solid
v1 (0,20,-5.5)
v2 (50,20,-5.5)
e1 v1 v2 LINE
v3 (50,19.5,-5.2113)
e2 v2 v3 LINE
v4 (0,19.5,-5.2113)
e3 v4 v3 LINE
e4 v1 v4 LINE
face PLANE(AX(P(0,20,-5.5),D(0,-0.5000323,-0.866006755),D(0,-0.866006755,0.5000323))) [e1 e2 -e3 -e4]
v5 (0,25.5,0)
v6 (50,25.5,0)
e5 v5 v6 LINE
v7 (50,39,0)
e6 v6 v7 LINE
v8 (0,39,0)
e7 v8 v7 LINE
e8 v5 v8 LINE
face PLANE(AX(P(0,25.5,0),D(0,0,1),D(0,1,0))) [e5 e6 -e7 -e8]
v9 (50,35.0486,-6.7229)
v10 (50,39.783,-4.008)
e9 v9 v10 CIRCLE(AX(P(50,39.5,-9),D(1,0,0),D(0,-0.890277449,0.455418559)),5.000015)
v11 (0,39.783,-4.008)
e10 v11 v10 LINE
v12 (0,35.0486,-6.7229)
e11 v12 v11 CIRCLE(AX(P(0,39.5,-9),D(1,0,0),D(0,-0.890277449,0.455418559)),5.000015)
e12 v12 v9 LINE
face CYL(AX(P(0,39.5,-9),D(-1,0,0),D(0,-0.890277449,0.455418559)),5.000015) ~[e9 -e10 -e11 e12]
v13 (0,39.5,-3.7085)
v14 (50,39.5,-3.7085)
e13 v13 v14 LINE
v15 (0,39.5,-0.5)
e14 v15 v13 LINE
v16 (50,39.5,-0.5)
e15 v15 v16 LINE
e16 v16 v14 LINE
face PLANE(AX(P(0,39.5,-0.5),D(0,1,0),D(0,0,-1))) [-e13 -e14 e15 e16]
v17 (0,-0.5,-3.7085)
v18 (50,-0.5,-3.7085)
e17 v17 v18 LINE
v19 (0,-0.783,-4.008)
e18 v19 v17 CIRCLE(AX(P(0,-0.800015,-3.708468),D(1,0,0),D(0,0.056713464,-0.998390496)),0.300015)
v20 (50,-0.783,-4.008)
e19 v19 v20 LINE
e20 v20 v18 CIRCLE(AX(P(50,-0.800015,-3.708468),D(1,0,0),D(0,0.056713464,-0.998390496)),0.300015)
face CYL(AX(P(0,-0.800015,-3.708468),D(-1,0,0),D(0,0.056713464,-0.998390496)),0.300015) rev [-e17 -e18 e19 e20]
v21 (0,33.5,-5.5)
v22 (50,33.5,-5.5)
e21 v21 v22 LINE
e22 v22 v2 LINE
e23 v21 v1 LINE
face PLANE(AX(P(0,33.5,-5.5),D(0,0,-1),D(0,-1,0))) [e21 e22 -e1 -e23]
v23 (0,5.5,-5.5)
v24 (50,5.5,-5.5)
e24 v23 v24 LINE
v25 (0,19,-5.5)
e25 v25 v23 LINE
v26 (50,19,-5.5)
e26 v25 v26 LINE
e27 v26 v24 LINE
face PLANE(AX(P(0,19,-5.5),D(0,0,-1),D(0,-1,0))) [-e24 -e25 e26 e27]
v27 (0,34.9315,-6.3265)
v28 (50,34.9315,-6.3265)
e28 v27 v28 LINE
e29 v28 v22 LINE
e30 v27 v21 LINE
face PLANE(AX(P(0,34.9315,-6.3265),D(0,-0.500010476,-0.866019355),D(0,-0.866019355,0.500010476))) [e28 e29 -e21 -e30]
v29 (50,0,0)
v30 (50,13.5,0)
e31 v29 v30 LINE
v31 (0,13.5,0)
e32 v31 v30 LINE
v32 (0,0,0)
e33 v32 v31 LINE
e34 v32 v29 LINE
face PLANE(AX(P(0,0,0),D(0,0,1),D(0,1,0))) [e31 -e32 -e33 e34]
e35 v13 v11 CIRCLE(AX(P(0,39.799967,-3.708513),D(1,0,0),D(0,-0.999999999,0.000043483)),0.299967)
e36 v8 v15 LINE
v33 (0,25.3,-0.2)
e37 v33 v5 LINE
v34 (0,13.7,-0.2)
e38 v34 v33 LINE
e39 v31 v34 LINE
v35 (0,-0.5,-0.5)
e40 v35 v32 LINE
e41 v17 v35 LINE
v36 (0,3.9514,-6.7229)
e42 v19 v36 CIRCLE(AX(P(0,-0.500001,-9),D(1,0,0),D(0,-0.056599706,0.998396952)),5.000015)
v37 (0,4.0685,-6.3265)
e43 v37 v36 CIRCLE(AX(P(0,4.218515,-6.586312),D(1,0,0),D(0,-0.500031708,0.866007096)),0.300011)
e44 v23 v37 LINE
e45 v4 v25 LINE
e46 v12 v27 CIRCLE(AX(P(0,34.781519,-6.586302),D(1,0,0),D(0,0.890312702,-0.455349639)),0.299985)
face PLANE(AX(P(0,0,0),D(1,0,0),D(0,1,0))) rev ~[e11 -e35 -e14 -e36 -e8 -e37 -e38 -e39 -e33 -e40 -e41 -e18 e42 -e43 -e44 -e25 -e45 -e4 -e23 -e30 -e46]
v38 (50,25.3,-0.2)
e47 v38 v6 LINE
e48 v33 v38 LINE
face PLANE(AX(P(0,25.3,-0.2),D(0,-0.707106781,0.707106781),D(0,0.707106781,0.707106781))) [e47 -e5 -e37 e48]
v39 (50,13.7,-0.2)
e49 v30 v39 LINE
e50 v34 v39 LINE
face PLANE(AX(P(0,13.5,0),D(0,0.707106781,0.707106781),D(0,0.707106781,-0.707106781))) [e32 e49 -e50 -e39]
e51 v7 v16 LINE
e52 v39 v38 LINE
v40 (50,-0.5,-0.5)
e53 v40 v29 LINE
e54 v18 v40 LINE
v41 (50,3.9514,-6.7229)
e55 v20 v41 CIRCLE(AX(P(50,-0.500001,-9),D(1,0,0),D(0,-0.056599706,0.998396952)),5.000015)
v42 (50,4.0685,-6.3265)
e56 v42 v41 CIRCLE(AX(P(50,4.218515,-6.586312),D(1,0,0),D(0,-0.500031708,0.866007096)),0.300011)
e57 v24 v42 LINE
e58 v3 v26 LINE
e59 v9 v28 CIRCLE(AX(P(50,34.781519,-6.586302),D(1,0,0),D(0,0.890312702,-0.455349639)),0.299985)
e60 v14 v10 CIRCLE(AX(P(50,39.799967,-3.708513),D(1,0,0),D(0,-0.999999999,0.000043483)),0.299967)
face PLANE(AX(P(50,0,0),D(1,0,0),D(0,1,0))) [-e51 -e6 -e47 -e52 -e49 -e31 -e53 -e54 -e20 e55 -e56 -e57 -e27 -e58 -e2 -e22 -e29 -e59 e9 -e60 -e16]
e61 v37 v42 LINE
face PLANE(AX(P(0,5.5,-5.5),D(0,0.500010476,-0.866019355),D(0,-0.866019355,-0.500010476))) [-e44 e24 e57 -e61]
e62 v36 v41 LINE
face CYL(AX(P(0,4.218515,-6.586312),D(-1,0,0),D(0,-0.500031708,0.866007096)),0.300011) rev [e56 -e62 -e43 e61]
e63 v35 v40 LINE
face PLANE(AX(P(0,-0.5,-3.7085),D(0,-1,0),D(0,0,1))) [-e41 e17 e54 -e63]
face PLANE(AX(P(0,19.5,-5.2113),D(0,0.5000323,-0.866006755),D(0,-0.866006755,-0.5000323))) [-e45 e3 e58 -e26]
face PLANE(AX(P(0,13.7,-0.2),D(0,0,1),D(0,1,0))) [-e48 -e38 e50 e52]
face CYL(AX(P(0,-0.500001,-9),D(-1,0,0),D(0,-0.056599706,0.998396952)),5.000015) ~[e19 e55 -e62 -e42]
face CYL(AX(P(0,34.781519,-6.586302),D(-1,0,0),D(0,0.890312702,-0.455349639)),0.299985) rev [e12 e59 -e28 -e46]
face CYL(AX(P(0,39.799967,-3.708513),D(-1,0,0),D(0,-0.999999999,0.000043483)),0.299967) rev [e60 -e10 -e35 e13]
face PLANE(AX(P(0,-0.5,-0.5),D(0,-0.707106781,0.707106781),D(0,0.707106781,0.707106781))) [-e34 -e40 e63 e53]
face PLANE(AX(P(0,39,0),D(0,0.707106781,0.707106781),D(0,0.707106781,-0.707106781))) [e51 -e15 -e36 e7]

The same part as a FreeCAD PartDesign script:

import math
import FreeCAD as App
import Part
import Sketcher
Q = App.Units.Quantity

doc = App.newDocument("Part")
body = doc.addObject("PartDesign::Body", "Body")

# Sketch on YZ plane
sketch1 = body.newObject("Sketcher::SketchObject", "Sketch")
sketch1.AttachmentSupport = (doc.getObject("YZ_Plane"), [""])
sketch1.MapMode = "FlatFace"
sketch1.addGeometry([
    Part.LineSegment(App.Vector(25.3, -0.2, 0), App.Vector(13.7, -0.2, 0)),  # 0
    Part.LineSegment(App.Vector(13.7, -0.2, 0), App.Vector(13.5, 0, 0)),  # 1
    Part.LineSegment(App.Vector(13.5, 0, 0), App.Vector(0, 0, 0)),  # 2
    Part.LineSegment(App.Vector(0, 0, 0), App.Vector(-0.5, -0.5, 0)),  # 3
    Part.LineSegment(App.Vector(-0.5, -0.5, 0), App.Vector(-0.5, -3.71, 0)),  # 4
    Part.ArcOfCircle(Part.Circle(App.Vector(-0.8, -3.71, 0), App.Vector(0, 0, 1), 0.3), math.radians(-87), math.radians(0)),  # 5
    Part.ArcOfCircle(Part.Circle(App.Vector(-0.5, -9, 0), App.Vector(0, 0, 1), 5), math.radians(93), math.radians(387)),  # 6
    Part.ArcOfCircle(Part.Circle(App.Vector(4.22, -6.59, 0), App.Vector(0, 0, 1), 0.3), math.radians(120), math.radians(207)),  # 7
    Part.LineSegment(App.Vector(4.07, -6.33, 0), App.Vector(5.5, -5.5, 0)),  # 8
    Part.LineSegment(App.Vector(5.5, -5.5, 0), App.Vector(19, -5.5, 0)),  # 9
    Part.LineSegment(App.Vector(19, -5.5, 0), App.Vector(19.5, -5.21, 0)),  # 10
    Part.LineSegment(App.Vector(19.5, -5.21, 0), App.Vector(20, -5.5, 0)),  # 11
    Part.LineSegment(App.Vector(20, -5.5, 0), App.Vector(33.5, -5.5, 0)),  # 12
    Part.LineSegment(App.Vector(33.5, -5.5, 0), App.Vector(34.93, -6.33, 0)),  # 13
    Part.ArcOfCircle(Part.Circle(App.Vector(34.78, -6.59, 0), App.Vector(0, 0, 1), 0.3), math.radians(-27), math.radians(60)),  # 14
    Part.ArcOfCircle(Part.Circle(App.Vector(39.5, -9, 0), App.Vector(0, 0, 1), 5), math.radians(153), math.radians(447)),  # 15
    Part.ArcOfCircle(Part.Circle(App.Vector(39.8, -3.71, 0), App.Vector(0, 0, 1), 0.3), math.radians(180), math.radians(267)),  # 16
    Part.LineSegment(App.Vector(39.5, -3.71, 0), App.Vector(39.5, -0.5, 0)),  # 17
    Part.LineSegment(App.Vector(39.5, -0.5, 0), App.Vector(39, 0, 0)),  # 18
    Part.LineSegment(App.Vector(39, 0, 0), App.Vector(25.5, 0, 0)),  # 19
    Part.LineSegment(App.Vector(25.5, 0, 0), App.Vector(25.3, -0.2, 0)),  # 20
], False)
sketch1.addConstraint([
    Sketcher.Constraint("Coincident", 0, 2, 1, 1),
    Sketcher.Constraint("Coincident", 1, 2, 2, 1),
    Sketcher.Constraint("Coincident", 2, 2, 3, 1),
    Sketcher.Constraint("Coincident", 3, 2, 4, 1),
    Sketcher.Constraint("Tangent", 4, 2, 5, 2),
    Sketcher.Constraint("Tangent", 5, 1, 6, 1),
    Sketcher.Constraint("Tangent", 6, 2, 7, 2),
    Sketcher.Constraint("Tangent", 7, 1, 8, 1),
    Sketcher.Constraint("Coincident", 8, 2, 9, 1),
    Sketcher.Constraint("Coincident", 9, 2, 10, 1),
    Sketcher.Constraint("Coincident", 10, 2, 11, 1),
    Sketcher.Constraint("Coincident", 11, 2, 12, 1),
    Sketcher.Constraint("Coincident", 12, 2, 13, 1),
    Sketcher.Constraint("Tangent", 13, 2, 14, 2),
    Sketcher.Constraint("Tangent", 14, 1, 15, 1),
    Sketcher.Constraint("Tangent", 15, 2, 16, 2),
    Sketcher.Constraint("Tangent", 16, 1, 17, 1),
    Sketcher.Constraint("Coincident", 17, 2, 18, 1),
    Sketcher.Constraint("Coincident", 18, 2, 19, 1),
    Sketcher.Constraint("Coincident", 19, 2, 20, 1),
    Sketcher.Constraint("Coincident", 20, 2, 0, 1),
    Sketcher.Constraint("Horizontal", 0),
    Sketcher.Constraint("Horizontal", 2),
    Sketcher.Constraint("Vertical", 4),
    Sketcher.Constraint("Horizontal", 9),
    Sketcher.Constraint("Horizontal", 12),
    Sketcher.Constraint("Vertical", 17),
    Sketcher.Constraint("Horizontal", 19),
    Sketcher.Constraint("Coincident", 2, 2, -1, 1),
    Sketcher.Constraint("Equal", 5, 7),
    Sketcher.Constraint("Equal", 7, 14),
    Sketcher.Constraint("Equal", 6, 15),
    Sketcher.Constraint("Equal", 14, 16),
    Sketcher.Constraint("PointOnObject", 18, 2, -1),
    Sketcher.Constraint("Perpendicular", 1, 3),
    Sketcher.Constraint("Parallel", 8, 10),
    Sketcher.Constraint("Parallel", 11, 13),
    Sketcher.Constraint("Perpendicular", 3, 18),
    Sketcher.Constraint("Perpendicular", 18, 20),
    Sketcher.Constraint("Horizontal", 7, 3, 14, 3),
    Sketcher.Constraint("Horizontal", 6, 3, 15, 3),
    Sketcher.Constraint("Horizontal", 5, 3, 16, 3),
    Sketcher.Constraint("Horizontal", 9, 2, 11, 2),
    Sketcher.Constraint("Horizontal", 7, 1, 13, 2),
    Sketcher.Constraint("Horizontal", 3, 2, 17, 2),
    Sketcher.Constraint("Vertical", 6, 3, 3, 2),
    Sketcher.Constraint("Equal", 2, 9),
    Sketcher.Constraint("Equal", 9, 12),
    Sketcher.Constraint("Equal", 12, 19),
    Sketcher.Constraint("Equal", 3, 18),
    Sketcher.Constraint("Radius", 6, 5.0),
    Sketcher.Constraint("Radius", 5, 0.3),
    Sketcher.Constraint("Angle", 8, Q("30.0007 deg")),
    Sketcher.Constraint("DistanceX", 0, 2, 0, 1, 11.6),
    Sketcher.Constraint("DistanceX", 2, 2, 2, 1, 13.5),
    Sketcher.Constraint("DistanceY", 6, 3, -1, 1, 9.0),
    Sketcher.Constraint("DistanceX", -1, 1, 9, 2, 19.0),
    Sketcher.Constraint("DistanceX", -1, 1, 11, 2, 20.0),
    Sketcher.Constraint("DistanceX", 6, 3, 15, 3, 40.0),
    Sketcher.Constraint("DistanceY", 8, 2, -1, 1, 5.5),
])
pad1 = body.newObject("PartDesign::Pad", "Pad")
pad1.Profile = sketch1
pad1.Length = 50

doc.recompute()
